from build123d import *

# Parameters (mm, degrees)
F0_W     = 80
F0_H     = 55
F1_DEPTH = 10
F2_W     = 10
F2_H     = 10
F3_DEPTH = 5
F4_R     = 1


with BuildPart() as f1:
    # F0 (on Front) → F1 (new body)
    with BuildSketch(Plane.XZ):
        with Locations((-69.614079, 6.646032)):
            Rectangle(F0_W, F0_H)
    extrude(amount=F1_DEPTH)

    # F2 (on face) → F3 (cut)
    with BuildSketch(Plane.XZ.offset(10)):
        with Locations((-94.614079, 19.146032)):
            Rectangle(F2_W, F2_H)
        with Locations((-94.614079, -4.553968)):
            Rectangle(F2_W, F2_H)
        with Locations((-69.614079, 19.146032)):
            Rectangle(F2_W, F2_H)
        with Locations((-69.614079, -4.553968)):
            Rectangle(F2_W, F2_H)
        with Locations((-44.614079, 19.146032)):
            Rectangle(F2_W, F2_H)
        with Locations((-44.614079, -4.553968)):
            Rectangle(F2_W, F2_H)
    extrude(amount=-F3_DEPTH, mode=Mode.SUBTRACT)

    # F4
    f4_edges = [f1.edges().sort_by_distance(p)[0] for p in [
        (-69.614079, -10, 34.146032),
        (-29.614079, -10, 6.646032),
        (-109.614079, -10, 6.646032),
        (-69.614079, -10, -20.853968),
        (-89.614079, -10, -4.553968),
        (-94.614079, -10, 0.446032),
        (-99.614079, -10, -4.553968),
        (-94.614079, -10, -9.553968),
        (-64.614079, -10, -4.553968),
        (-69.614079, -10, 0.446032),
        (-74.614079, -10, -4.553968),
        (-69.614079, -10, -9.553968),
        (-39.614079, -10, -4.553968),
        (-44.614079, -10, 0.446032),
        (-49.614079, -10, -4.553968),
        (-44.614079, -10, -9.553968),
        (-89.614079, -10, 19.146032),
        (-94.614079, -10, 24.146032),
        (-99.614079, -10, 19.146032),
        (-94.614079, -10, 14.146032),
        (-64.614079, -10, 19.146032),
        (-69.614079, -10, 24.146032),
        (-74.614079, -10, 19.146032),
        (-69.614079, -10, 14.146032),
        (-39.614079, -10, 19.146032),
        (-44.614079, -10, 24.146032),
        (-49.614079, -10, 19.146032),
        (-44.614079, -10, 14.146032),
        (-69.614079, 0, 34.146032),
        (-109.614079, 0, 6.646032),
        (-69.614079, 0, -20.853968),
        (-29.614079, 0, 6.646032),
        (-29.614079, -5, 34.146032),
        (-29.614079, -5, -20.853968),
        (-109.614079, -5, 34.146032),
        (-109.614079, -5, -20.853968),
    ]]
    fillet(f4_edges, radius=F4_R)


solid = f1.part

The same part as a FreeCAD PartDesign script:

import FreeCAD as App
import Part
import Sketcher


def edges_at(feature, points):
    """Names of the edges that pass closest to the given points."""
    edges = feature.Shape.Edges
    near = lambda p: min(range(len(edges)), key=lambda i: edges[i].distToShape(Part.Vertex(*p))[0])
    return sorted({f"Edge{near(p) + 1}" for p in points})


def add_polygon(sketch, points):
    """Adds a closed chain of lines whose ends are joined by coincident constraints."""
    first, n = sketch.GeometryCount, len(points)
    for a, b in zip(points, points[1:] + points[:1]):
        sketch.addGeometry(Part.LineSegment(App.Vector(*a, 0), App.Vector(*b, 0)), False)
    for i in range(n):
        sketch.addConstraint(Sketcher.Constraint("Coincident", first + i, 2, first + (i + 1) % n, 1))

doc = App.newDocument("Part")
body = doc.addObject("PartDesign::Body", "Body")

# Sketch on XZ plane
sketch1 = body.newObject("Sketcher::SketchObject", "Sketch")
sketch1.AttachmentSupport = (doc.getObject("XZ_Plane"), [""])
sketch1.MapMode = "FlatFace"
add_polygon(sketch1, [(-110, 34), (-110, -21), (-30, -21), (-30, 34)])  # lines 0-3
sketch1.addConstraint(Sketcher.Constraint("Vertical", 0))
sketch1.addConstraint(Sketcher.Constraint("Horizontal", 1))
sketch1.addConstraint(Sketcher.Constraint("Vertical", 2))
sketch1.addConstraint(Sketcher.Constraint("Horizontal", 3))
sketch1.addConstraint(Sketcher.Constraint("DistanceX", 1, 1, 1, 2, 80.0))
sketch1.addConstraint(Sketcher.Constraint("DistanceY", 0, 2, 0, 1, 55.0))
sketch1.addConstraint(Sketcher.Constraint("DistanceX", 0, 2, -1, 1, 109.614079))
sketch1.addConstraint(Sketcher.Constraint("DistanceY", -1, 1, 2, 2, 34.146032))
pad1 = body.newObject("PartDesign::Pad", "Pad")
pad1.Profile = sketch1
pad1.Length = 10

# Sketch on XZ plane
sketch2 = body.newObject("Sketcher::SketchObject", "Sketch001")
sketch2.AttachmentSupport = (doc.getObject("XZ_Plane"), [""])
sketch2.MapMode = "FlatFace"
sketch2.AttachmentOffset = App.Placement(App.Vector(0, 0, 10), App.Rotation())
add_polygon(sketch2, [(-100, 24), (-100, 14), (-90, 14), (-90, 24)])  # lines 0-3
add_polygon(sketch2, [(-100, 0), (-100, -10), (-90, -10), (-90, 0)])  # lines 4-7
add_polygon(sketch2, [(-75, 24), (-75, 14), (-65, 14), (-65, 24)])  # lines 8-11
add_polygon(sketch2, [(-75, 0), (-75, -10), (-65, -10), (-65, 0)])  # lines 12-15
add_polygon(sketch2, [(-50, 24), (-50, 14), (-40, 14), (-40, 24)])  # lines 16-19
add_polygon(sketch2, [(-50, 0), (-50, -10), (-40, -10), (-40, 0)])  # lines 20-23
sketch2.addConstraint(Sketcher.Constraint("Vertical", 0))
sketch2.addConstraint(Sketcher.Constraint("Horizontal", 1))
sketch2.addConstraint(Sketcher.Constraint("Vertical", 2))
sketch2.addConstraint(Sketcher.Constraint("Horizontal", 3))
sketch2.addConstraint(Sketcher.Constraint("Vertical", 4))
sketch2.addConstraint(Sketcher.Constraint("Horizontal", 5))
sketch2.addConstraint(Sketcher.Constraint("Vertical", 6))
sketch2.addConstraint(Sketcher.Constraint("Horizontal", 7))
sketch2.addConstraint(Sketcher.Constraint("Vertical", 8))
sketch2.addConstraint(Sketcher.Constraint("Horizontal", 9))
sketch2.addConstraint(Sketcher.Constraint("Vertical", 10))
sketch2.addConstraint(Sketcher.Constraint("Horizontal", 11))
sketch2.addConstraint(Sketcher.Constraint("Vertical", 12))
sketch2.addConstraint(Sketcher.Constraint("Horizontal", 13))
sketch2.addConstraint(Sketcher.Constraint("Vertical", 14))
sketch2.addConstraint(Sketcher.Constraint("Horizontal", 15))
sketch2.addConstraint(Sketcher.Constraint("Vertical", 16))
sketch2.addConstraint(Sketcher.Constraint("Horizontal", 17))
sketch2.addConstraint(Sketcher.Constraint("Vertical", 18))
sketch2.addConstraint(Sketcher.Constraint("Horizontal", 19))
sketch2.addConstraint(Sketcher.Constraint("Vertical", 20))
sketch2.addConstraint(Sketcher.Constraint("Horizontal", 21))
sketch2.addConstraint(Sketcher.Constraint("Vertical", 22))
sketch2.addConstraint(Sketcher.Constraint("Horizontal", 23))
sketch2.addConstraint(Sketcher.Constraint("Horizontal", 1, 2, 8, 2))
sketch2.addConstraint(Sketcher.Constraint("Horizontal", 3, 2, 10, 2))
sketch2.addConstraint(Sketcher.Constraint("Horizontal", 5, 2, 12, 2))
sketch2.addConstraint(Sketcher.Constraint("Horizontal", 7, 2, 14, 2))
sketch2.addConstraint(Sketcher.Constraint("Horizontal", 9, 2, 16, 2))
sketch2.addConstraint(Sketcher.Constraint("Horizontal", 11, 2, 18, 2))
sketch2.addConstraint(Sketcher.Constraint("Horizontal", 13, 2, 20, 2))
sketch2.addConstraint(Sketcher.Constraint("Horizontal", 15, 2, 22, 2))
sketch2.addConstraint(Sketcher.Constraint("Vertical", 3, 2, 4, 2))
sketch2.addConstraint(Sketcher.Constraint("Vertical", 2, 2, 5, 2))
sketch2.addConstraint(Sketcher.Constraint("Vertical", 11, 2, 12, 2))
sketch2.addConstraint(Sketcher.Constraint("Vertical", 10, 2, 13, 2))
sketch2.addConstraint(Sketcher.Constraint("Vertical", 19, 2, 20, 2))
sketch2.addConstraint(Sketcher.Constraint("Vertical", 18, 2, 21, 2))
sketch2.addConstraint(Sketcher.Constraint("Equal", 7, 9))
sketch2.addConstraint(Sketcher.Constraint("Equal", 15, 17))
sketch2.addConstraint(Sketcher.Constraint("Equal", 23, 0))
sketch2.addConstraint(Sketcher.Constraint("Equal", 2, 4))
sketch2.addConstraint(Sketcher.Constraint("DistanceX", 1, 1, 1, 2, 10.0))
sketch2.addConstraint(Sketcher.Constraint("DistanceX", 1, 2, 8, 2, 15.0))
sketch2.addConstraint(Sketcher.Constraint("DistanceX", 9, 2, 16, 2, 15.0))
sketch2.addConstraint(Sketcher.Constraint("DistanceY", 4, 2, 0, 2, 23.7))
sketch2.addConstraint(Sketcher.Constraint("DistanceX", 0, 2, -1, 1, 99.614079))
sketch2.addConstraint(Sketcher.Constraint("DistanceY", -1, 1, 0, 2, 14.146032))
pocket1 = body.newObject("PartDesign::Pocket", "Pocket")
pocket1.Profile = sketch2
pocket1.Length = 5
doc.recompute()

fillet = body.newObject("PartDesign::Fillet", "Fillet")
fillet.Base = (pocket1, edges_at(pocket1, [
    (-69.614, -10, 34.146),
    (-29.614, -10, 6.646),
    (-109.614, -10, 6.646),
    (-69.614, -10, -20.854),
    (-89.614, -10, -4.554),
    (-94.614, -10, 0.446),
    (-99.614, -10, -4.554),
    (-94.614, -10, -9.554),
    (-64.614, -10, -4.554),
    (-69.614, -10, 0.446),
    (-74.614, -10, -4.554),
    (-69.614, -10, -9.554),
    (-39.614, -10, -4.554),
    (-44.614, -10, 0.446),
    (-49.614, -10, -4.554),
    (-44.614, -10, -9.554),
    (-89.614, -10, 19.146),
    (-94.614, -10, 24.146),
    (-99.614, -10, 19.146),
    (-94.614, -10, 14.146),
    (-64.614, -10, 19.146),
    (-69.614, -10, 24.146),
    (-74.614, -10, 19.146),
    (-69.614, -10, 14.146),
    (-39.614, -10, 19.146),
    (-44.614, -10, 24.146),
    (-49.614, -10, 19.146),
    (-44.614, -10, 14.146),
    (-69.614, 0, 34.146),
    (-109.614, 0, 6.646),
    (-69.614, 0, -20.854),
    (-29.614, 0, 6.646),
    (-29.614, -5, 34.146),
    (-29.614, -5, -20.854),
    (-109.614, -5, 34.146),
    (-109.614, -5, -20.854),
]))
fillet.Radius = 1

doc.recompute()
